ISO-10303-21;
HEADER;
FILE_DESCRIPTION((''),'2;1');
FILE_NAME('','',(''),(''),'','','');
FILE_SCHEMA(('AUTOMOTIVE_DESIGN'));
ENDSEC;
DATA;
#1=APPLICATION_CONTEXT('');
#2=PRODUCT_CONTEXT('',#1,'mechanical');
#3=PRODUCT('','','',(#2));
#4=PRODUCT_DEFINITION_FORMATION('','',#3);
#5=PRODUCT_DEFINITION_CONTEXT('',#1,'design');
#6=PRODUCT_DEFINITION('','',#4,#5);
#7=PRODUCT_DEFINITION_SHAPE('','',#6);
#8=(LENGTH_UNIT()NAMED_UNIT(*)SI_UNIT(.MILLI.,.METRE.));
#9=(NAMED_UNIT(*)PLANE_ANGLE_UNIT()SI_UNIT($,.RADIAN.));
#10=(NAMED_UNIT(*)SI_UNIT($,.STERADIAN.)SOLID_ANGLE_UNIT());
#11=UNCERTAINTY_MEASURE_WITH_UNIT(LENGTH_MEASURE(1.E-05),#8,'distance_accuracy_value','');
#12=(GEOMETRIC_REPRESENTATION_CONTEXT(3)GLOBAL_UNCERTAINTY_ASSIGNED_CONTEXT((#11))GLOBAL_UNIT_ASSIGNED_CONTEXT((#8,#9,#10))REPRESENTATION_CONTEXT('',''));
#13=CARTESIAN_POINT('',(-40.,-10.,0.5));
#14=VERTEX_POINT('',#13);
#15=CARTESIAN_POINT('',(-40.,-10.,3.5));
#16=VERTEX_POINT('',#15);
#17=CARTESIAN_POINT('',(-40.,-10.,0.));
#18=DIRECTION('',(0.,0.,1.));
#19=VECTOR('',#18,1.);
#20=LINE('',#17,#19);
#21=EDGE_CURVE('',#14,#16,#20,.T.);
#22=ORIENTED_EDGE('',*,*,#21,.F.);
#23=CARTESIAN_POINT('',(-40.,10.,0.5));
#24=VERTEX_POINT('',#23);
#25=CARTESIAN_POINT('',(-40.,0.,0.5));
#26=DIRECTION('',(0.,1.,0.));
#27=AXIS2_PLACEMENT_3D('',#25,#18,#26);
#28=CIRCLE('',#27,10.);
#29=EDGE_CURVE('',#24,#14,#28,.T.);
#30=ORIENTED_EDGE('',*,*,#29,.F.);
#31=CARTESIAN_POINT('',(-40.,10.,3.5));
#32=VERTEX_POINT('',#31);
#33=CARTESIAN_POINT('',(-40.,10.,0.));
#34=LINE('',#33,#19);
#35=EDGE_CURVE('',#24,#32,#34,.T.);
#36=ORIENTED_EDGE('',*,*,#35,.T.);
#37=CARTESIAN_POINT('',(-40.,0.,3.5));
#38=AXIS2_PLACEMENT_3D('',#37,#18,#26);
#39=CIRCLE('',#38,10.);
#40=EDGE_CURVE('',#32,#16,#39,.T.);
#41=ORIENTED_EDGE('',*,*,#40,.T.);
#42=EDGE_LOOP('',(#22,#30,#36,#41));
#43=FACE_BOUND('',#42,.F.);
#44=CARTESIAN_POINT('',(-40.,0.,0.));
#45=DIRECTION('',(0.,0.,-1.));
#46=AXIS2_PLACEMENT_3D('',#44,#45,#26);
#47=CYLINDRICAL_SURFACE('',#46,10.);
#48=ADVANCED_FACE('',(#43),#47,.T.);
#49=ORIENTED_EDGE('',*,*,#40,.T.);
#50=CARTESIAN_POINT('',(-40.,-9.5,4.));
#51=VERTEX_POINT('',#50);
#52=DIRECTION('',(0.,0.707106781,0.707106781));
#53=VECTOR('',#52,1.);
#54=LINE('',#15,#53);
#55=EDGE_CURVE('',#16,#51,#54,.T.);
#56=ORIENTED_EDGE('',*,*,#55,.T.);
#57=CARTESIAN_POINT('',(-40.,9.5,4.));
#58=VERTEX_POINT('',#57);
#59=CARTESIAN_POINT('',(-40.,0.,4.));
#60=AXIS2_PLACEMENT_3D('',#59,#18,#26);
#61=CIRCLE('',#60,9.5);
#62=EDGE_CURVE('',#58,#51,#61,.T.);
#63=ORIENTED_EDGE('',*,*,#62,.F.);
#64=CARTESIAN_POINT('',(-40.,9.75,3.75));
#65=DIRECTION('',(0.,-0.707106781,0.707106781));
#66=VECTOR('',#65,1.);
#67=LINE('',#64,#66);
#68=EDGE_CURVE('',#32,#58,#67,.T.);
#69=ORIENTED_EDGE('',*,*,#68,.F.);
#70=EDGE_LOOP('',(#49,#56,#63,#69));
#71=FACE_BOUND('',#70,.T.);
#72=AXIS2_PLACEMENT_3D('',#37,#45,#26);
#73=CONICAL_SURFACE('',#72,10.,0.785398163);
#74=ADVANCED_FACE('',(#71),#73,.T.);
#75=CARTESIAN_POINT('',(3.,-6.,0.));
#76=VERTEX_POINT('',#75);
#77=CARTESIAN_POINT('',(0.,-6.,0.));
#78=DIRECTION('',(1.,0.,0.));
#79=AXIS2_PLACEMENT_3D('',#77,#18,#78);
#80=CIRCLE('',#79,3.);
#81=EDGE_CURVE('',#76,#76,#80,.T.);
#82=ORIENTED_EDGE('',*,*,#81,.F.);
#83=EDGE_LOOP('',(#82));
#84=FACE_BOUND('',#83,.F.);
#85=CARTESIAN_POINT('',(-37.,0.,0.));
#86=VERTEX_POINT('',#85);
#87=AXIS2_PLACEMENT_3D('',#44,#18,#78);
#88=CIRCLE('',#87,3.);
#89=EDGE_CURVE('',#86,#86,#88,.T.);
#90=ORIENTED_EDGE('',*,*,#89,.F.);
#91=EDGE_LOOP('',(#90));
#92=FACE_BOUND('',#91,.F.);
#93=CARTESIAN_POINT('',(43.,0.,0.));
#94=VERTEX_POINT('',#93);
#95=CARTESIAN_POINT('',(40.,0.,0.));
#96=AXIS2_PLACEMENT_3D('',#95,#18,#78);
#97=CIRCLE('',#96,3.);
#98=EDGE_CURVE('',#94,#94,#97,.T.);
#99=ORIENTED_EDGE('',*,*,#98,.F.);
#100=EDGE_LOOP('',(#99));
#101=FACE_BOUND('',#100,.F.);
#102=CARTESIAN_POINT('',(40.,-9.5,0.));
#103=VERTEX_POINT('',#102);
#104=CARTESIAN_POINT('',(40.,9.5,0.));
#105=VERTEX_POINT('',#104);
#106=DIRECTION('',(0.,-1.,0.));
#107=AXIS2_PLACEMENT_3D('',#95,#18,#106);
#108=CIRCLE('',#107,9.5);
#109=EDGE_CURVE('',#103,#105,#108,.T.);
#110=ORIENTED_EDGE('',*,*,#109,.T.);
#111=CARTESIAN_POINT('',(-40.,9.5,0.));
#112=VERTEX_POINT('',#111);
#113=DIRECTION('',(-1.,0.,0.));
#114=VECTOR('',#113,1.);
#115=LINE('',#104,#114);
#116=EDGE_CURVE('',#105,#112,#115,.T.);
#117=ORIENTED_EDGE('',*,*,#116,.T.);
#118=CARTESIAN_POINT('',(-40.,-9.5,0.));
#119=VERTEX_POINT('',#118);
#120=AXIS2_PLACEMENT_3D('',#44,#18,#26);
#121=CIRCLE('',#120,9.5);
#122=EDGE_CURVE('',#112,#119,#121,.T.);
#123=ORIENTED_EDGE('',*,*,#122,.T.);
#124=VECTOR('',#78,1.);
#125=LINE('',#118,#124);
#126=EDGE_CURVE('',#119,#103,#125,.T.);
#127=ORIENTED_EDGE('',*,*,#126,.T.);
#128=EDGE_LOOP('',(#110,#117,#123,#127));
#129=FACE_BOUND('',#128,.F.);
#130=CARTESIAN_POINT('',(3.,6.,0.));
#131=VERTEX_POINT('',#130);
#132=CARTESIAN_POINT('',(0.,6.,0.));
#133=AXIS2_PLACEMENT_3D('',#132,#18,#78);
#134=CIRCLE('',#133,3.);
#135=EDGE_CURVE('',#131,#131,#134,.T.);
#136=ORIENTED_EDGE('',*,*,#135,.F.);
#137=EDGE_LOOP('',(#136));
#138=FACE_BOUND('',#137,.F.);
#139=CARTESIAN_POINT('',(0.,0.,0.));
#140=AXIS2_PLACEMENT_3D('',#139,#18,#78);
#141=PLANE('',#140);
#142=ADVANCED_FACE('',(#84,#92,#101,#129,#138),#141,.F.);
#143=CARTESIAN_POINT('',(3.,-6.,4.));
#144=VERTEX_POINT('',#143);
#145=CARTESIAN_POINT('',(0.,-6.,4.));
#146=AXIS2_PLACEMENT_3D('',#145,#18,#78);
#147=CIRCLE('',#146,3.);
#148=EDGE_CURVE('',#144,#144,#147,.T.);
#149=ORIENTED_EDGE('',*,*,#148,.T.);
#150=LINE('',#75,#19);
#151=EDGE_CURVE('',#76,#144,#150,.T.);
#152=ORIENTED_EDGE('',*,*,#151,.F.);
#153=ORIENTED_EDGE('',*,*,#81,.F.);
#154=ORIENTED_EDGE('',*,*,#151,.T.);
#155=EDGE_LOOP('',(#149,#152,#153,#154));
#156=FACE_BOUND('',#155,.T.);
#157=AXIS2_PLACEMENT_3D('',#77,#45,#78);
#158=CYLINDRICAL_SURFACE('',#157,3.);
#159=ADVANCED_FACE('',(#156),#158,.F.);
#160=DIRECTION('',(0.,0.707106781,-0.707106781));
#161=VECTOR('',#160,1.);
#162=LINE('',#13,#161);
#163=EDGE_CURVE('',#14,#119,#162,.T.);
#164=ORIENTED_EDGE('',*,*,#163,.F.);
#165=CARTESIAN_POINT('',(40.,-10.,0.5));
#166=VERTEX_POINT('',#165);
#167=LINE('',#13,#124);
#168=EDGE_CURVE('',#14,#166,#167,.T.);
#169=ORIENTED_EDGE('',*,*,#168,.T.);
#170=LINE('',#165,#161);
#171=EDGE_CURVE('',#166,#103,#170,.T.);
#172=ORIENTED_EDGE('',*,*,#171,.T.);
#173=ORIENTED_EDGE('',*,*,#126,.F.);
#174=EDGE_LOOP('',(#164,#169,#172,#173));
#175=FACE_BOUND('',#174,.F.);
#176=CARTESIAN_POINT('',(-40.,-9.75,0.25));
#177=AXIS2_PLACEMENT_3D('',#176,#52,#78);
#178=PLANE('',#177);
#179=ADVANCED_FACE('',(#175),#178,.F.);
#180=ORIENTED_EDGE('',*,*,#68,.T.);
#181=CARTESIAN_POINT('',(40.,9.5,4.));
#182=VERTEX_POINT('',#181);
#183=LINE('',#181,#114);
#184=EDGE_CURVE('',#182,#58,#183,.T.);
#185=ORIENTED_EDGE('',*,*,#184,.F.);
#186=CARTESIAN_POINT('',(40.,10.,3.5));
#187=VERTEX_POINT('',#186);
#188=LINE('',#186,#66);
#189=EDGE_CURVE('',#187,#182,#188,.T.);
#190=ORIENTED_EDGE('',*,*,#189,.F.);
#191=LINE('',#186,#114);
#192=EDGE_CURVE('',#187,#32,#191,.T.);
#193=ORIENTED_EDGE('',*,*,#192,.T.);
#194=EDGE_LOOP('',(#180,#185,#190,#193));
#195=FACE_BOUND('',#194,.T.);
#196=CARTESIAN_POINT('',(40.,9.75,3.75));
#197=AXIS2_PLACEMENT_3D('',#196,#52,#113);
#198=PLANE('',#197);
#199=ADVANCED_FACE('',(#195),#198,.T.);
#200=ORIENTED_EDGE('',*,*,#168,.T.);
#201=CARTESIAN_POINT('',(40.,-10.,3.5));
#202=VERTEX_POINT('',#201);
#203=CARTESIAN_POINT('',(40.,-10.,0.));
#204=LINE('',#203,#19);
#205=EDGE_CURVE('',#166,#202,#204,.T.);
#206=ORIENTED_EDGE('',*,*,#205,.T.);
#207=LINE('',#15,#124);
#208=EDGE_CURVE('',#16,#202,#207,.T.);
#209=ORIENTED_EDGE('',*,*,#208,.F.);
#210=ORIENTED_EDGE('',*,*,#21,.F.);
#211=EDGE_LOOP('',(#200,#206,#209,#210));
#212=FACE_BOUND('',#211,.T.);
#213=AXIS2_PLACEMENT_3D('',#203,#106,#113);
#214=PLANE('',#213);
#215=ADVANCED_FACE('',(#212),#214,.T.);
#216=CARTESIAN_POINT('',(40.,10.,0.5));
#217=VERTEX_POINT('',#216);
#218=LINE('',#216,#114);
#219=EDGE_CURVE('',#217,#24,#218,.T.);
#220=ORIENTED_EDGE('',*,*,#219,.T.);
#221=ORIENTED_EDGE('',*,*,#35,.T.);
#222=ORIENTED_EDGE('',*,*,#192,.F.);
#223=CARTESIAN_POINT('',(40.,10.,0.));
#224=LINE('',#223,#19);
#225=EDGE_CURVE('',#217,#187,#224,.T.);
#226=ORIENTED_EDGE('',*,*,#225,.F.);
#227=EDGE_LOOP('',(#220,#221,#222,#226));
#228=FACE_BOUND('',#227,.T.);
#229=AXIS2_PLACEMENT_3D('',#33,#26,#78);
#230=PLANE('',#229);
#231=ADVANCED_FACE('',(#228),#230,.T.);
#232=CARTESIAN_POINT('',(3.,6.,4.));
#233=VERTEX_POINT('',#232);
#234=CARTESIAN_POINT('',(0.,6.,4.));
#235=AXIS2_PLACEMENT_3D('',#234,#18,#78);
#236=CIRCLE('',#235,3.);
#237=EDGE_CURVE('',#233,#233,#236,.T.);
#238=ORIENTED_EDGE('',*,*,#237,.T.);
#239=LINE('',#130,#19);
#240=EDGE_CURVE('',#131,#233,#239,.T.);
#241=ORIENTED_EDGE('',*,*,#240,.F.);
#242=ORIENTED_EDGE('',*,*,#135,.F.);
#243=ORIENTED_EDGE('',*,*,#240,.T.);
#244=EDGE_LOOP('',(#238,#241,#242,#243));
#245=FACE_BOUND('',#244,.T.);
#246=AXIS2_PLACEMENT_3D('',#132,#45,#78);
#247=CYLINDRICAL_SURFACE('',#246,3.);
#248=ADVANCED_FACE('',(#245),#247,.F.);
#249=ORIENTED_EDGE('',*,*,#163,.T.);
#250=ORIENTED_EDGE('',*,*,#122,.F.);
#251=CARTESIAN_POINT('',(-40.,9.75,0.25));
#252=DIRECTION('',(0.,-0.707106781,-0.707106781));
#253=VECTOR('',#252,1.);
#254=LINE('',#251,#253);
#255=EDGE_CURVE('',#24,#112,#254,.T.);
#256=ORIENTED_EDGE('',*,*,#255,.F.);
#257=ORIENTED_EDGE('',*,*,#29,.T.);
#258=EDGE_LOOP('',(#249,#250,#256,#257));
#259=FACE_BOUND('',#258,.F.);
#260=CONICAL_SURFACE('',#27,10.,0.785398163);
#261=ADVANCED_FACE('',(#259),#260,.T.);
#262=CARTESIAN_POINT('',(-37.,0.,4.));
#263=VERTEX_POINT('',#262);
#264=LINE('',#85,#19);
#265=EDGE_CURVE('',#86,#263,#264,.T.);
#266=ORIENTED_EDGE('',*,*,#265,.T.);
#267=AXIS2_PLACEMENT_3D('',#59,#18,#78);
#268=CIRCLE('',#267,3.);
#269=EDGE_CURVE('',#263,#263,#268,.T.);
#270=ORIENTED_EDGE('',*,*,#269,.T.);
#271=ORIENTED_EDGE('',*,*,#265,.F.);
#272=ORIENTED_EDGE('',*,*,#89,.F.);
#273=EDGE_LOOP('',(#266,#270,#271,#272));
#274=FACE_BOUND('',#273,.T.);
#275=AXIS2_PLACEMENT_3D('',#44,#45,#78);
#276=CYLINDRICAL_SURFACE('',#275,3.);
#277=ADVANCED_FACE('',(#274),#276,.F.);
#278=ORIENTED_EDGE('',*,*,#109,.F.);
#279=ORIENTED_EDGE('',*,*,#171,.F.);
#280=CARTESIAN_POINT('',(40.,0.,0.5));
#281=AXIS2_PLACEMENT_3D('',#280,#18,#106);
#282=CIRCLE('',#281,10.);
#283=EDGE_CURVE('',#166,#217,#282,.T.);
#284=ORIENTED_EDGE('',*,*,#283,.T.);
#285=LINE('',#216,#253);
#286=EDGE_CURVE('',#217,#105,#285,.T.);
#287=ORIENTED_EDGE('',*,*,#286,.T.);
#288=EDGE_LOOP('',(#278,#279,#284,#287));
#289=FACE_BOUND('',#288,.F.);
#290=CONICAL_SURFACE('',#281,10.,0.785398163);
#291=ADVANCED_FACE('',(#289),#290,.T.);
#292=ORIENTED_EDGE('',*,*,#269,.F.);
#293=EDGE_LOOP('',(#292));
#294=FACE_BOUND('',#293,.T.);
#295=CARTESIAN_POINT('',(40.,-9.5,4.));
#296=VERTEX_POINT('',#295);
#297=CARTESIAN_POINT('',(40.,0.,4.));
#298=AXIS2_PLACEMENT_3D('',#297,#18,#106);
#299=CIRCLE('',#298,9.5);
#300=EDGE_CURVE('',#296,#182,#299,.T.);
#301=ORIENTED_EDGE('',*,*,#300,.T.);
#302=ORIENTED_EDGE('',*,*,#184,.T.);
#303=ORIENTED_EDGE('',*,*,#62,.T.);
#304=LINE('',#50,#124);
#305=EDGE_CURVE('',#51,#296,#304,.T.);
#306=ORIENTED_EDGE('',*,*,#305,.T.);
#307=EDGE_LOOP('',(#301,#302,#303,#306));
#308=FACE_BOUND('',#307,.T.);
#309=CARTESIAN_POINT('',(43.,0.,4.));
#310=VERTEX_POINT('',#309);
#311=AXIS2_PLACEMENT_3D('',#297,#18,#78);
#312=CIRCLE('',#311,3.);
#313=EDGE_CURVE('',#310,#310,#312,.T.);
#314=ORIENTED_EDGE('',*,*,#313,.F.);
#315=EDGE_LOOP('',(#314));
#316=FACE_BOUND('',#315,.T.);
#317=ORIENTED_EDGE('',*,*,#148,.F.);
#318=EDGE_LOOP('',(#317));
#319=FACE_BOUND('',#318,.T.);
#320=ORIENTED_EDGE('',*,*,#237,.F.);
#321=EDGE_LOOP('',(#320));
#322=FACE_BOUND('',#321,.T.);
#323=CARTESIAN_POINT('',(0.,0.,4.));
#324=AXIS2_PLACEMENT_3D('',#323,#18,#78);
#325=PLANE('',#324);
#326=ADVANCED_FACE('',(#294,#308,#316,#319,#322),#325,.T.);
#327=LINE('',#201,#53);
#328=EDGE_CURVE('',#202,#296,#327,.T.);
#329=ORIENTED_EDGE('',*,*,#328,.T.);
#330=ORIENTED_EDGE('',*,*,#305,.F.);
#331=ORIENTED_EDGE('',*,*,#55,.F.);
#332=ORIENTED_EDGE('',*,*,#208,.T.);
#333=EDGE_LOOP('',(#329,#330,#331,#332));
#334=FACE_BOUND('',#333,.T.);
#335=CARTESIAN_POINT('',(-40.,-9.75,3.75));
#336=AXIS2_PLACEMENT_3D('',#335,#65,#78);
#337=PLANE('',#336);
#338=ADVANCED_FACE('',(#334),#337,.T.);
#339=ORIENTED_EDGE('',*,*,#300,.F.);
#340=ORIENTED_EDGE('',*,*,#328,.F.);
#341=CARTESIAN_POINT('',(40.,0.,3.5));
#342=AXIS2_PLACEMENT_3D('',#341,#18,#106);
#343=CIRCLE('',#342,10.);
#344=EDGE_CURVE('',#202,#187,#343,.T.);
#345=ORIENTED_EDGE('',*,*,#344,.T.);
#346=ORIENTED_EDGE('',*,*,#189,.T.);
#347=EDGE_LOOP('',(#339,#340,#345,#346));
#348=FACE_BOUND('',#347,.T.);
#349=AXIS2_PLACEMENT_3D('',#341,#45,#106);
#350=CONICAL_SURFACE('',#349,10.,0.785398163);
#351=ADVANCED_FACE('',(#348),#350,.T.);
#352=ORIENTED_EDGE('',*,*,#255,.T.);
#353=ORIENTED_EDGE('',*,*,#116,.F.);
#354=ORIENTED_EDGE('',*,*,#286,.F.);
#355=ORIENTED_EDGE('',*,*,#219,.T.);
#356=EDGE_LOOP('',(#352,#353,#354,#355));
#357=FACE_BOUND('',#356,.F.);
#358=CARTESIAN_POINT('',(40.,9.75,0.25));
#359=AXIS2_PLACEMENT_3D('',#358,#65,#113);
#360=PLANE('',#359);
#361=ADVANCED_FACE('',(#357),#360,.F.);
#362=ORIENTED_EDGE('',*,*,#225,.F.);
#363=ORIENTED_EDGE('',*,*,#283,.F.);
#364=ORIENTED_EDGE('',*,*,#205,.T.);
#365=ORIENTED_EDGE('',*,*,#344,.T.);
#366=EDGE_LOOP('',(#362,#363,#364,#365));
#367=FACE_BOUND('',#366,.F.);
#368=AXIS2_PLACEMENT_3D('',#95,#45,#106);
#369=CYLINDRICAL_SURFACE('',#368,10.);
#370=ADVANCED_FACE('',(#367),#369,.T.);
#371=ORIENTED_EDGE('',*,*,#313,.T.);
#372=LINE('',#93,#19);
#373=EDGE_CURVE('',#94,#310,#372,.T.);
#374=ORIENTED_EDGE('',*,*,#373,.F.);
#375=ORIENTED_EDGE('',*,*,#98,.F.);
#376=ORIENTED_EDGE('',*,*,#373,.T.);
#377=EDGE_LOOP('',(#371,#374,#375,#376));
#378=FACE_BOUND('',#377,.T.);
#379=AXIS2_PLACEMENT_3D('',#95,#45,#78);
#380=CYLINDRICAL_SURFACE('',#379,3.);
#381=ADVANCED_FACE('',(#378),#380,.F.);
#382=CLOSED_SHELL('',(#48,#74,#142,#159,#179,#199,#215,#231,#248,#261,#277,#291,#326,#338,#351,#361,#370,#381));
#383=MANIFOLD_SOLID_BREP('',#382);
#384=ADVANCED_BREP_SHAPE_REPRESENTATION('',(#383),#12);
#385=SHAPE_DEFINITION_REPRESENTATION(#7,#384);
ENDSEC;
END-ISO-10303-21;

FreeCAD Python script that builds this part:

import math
import FreeCAD as App
import Part
import Sketcher
Q = App.Units.Quantity


def edges_at(feature, points):
    """Names of the edges that pass closest to the given points."""
    edges = feature.Shape.Edges
    near = lambda p: min(range(len(edges)), key=lambda i: edges[i].distToShape(Part.Vertex(*p))[0])
    return sorted({f"Edge{near(p) + 1}" for p in points})

doc = App.newDocument("Part")
params = doc.addObject("Spreadsheet::Sheet", "Params")
for row, (alias, value) in enumerate([
    ("sketch1_diameter", "6 mm"),
    ("sketch1_radius", "10 mm"),
    ("sketch1_width", "80 mm"),
    ("pad1_length", "4 mm"),
    ("chamfer_size", "0.5 mm"),
], start=1):
    params.set(f"A{row}", alias)
    params.set(f"B{row}", "=" + value)
    params.setAlias(f"B{row}", alias)

body = doc.addObject("PartDesign::Body", "Body")

# Sketch on XY plane
sketch1 = body.newObject("Sketcher::SketchObject", "Sketch")
sketch1.AttachmentSupport = (doc.getObject("XY_Plane"), [""])
sketch1.MapMode = "FlatFace"
sketch1.addGeometry([
    Part.LineSegment(App.Vector(40, 10, 0), App.Vector(-40, 10, 0)),  # 0
    Part.ArcOfCircle(Part.Circle(App.Vector(-40, 0, 0), App.Vector(0, 0, 1), 10), math.radians(90), math.radians(270)),  # 1
    Part.LineSegment(App.Vector(-40, -10, 0), App.Vector(40, -10, 0)),  # 2
    Part.ArcOfCircle(Part.Circle(App.Vector(40, 0, 0), App.Vector(0, 0, 1), 10), math.radians(-90), math.radians(90)),  # 3
    Part.Circle(App.Vector(0, -6, 0), App.Vector(0, 0, 1), 3),  # 4
    Part.Circle(App.Vector(-40, 0, 0), App.Vector(0, 0, 1), 3),  # 5
    Part.Circle(App.Vector(40, 0, 0), App.Vector(0, 0, 1), 3),  # 6
    Part.Circle(App.Vector(0, 6, 0), App.Vector(0, 0, 1), 3),  # 7
], False)
sketch1.addConstraint([
    Sketcher.Constraint("Tangent", 0, 2, 1, 1),
    Sketcher.Constraint("Tangent", 1, 2, 2, 1),
    Sketcher.Constraint("Tangent", 2, 2, 3, 1),
    Sketcher.Constraint("Tangent", 3, 2, 0, 1),
    Sketcher.Constraint("Horizontal", 0),
    Sketcher.Constraint("Horizontal", 2),
    Sketcher.Constraint("Coincident", 5, 3, 1, 3),
    Sketcher.Constraint("Coincident", 6, 3, 3, 3),
    Sketcher.Constraint("Equal", 4, 5),
    Sketcher.Constraint("Equal", 5, 6),
    Sketcher.Constraint("Equal", 6, 7),
    Sketcher.Constraint("Symmetric", 1, 3, 3, 3, -1, 1),
    Sketcher.Constraint("Symmetric", 4, 3, 7, 3, -1, 1),
    Sketcher.Constraint("PointOnObject", 4, 3, -2),
    Sketcher.Constraint("Diameter", 4, Q("6 mm")),
    Sketcher.Constraint("Radius", 1, Q("10 mm")),
    Sketcher.Constraint("DistanceX", 0, 2, 0, 1, Q("80 mm")),
    Sketcher.Constraint("DistanceY", 4, 3, -1, 1, Q("6 mm")),
])
sketch1.setExpression("Constraints[14]", "Params.sketch1_diameter")
sketch1.setExpression("Constraints[15]", "Params.sketch1_radius")
sketch1.setExpression("Constraints[16]", "Params.sketch1_width")
pad1 = body.newObject("PartDesign::Pad", "Pad")
pad1.Profile = sketch1
pad1.setExpression("Length", "Params.pad1_length")
doc.recompute()

chamfer = body.newObject("PartDesign::Chamfer", "Chamfer")
chamfer.Base = (pad1, edges_at(pad1, [
    (50, 0, 0),
    (0, -10, 0),
    (-50, 0, 0),
    (0, 10, 0),
    (50, 0, 4),
    (0, 10, 4),
    (-50, 0, 4),
    (0, -10, 4),
]))
chamfer.setExpression("Size", "Params.chamfer_size")

doc.recompute()
